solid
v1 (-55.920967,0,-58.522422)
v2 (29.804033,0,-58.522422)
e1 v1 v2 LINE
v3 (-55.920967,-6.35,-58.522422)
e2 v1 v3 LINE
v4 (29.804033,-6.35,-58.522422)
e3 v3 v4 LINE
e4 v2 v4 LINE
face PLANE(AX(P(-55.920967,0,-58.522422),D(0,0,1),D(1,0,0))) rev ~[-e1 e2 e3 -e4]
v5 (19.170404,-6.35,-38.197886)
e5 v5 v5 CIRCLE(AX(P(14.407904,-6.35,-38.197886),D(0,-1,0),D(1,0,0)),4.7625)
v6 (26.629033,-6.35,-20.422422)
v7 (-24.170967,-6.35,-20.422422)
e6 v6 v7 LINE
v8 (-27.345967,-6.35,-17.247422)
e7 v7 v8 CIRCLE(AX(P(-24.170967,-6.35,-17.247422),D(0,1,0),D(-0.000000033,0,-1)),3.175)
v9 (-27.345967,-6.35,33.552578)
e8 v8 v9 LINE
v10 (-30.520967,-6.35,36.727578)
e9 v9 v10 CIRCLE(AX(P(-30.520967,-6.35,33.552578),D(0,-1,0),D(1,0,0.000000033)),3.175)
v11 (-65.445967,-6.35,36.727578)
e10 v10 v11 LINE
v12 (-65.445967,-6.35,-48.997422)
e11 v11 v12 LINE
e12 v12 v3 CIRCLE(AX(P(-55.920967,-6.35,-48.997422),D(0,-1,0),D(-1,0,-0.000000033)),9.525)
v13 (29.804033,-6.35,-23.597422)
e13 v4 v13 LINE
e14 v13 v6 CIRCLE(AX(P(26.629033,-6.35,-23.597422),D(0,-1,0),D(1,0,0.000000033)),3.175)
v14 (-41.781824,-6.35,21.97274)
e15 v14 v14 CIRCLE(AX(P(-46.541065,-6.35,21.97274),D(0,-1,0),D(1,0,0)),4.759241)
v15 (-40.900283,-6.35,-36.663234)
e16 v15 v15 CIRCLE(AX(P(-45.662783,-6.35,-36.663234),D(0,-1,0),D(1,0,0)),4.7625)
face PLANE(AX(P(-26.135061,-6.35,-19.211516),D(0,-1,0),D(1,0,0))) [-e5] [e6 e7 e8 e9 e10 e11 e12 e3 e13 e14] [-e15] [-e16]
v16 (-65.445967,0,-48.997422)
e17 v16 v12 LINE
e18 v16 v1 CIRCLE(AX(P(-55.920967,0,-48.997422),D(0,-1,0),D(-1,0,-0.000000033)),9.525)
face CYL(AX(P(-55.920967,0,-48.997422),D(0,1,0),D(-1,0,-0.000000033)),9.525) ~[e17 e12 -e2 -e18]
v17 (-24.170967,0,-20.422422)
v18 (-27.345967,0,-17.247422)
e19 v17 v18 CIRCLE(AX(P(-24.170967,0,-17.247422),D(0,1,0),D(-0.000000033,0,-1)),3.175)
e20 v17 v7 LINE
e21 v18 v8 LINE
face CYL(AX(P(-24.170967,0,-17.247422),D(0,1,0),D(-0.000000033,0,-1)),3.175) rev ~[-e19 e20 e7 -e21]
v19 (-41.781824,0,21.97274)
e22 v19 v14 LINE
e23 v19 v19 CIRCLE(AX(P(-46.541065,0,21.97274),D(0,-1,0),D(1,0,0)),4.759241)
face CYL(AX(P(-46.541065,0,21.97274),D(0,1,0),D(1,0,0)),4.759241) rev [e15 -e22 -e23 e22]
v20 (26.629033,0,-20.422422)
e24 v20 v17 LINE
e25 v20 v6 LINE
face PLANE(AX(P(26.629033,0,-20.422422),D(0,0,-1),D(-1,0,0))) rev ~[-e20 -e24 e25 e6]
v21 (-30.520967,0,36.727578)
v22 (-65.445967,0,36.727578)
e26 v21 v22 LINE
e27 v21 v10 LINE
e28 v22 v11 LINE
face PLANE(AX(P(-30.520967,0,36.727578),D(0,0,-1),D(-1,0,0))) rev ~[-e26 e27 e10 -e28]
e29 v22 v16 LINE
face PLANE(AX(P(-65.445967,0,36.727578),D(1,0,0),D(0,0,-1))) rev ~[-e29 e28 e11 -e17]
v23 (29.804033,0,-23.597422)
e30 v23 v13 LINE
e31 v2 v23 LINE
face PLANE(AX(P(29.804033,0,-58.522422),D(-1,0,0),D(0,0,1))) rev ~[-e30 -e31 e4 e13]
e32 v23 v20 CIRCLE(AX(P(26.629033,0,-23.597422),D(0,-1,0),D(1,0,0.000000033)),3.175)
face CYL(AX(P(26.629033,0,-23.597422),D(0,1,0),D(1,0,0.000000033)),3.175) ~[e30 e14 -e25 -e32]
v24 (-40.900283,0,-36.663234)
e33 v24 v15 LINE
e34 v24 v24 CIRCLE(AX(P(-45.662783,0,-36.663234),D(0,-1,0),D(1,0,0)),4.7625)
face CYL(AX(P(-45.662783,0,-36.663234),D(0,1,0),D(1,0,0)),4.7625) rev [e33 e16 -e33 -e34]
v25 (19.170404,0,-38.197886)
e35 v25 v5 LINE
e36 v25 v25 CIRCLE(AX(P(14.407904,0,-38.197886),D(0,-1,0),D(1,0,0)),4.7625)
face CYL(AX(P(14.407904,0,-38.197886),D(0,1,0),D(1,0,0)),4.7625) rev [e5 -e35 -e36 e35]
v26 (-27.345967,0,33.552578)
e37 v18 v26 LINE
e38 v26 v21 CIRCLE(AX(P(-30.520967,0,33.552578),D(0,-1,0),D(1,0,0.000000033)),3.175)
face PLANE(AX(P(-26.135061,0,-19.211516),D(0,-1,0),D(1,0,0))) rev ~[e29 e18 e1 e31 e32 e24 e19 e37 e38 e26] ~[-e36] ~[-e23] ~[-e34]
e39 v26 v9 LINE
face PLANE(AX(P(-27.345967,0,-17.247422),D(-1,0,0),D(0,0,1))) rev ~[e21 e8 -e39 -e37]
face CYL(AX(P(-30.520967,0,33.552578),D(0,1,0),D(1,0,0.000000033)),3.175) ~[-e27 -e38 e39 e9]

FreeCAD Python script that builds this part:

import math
import FreeCAD as App
import Part
import Sketcher
Q = App.Units.Quantity

doc = App.newDocument("Part")
params = doc.addObject("Spreadsheet::Sheet", "Params")
for row, (alias, value) in enumerate([
    ("sketch1_width", "2 in"),
    ("sketch1_diameter", "0.375 in"),
    ("sketch1_radius", "0.375 in"),
    ("sketch1_radius2", "0.125 in"),
    ("pad1_length", "0.25 in"),
], start=1):
    params.set(f"A{row}", alias)
    params.set(f"B{row}", "=" + value)
    params.setAlias(f"B{row}", alias)

body = doc.addObject("PartDesign::Body", "Body")

sketch1 = doc.addObject("Sketcher::SketchObject", "Sketch")
body.addObject(sketch1)
sketch1.AttachmentSupport = (doc.XZ_Plane, [""])
sketch1.MapMode = "FlatFace"
sketch1.addGeometry(Part.LineSegment(App.Vector(-30.520967, 36.727578, 0), App.Vector(-65.445967, 36.727578, 0)), False)
sketch1.addGeometry(Part.LineSegment(App.Vector(-65.445967, 36.727578, 0), App.Vector(-65.445967, -48.997422, 0)), False)
sketch1.addGeometry(Part.ArcOfCircle(Part.Circle(App.Vector(-55.920967, -48.997422, 0), App.Vector(0, 0, 1), 9.525), math.radians(-179.999998), math.radians(-90.000002)), False)
sketch1.addGeometry(Part.LineSegment(App.Vector(-55.920967, -58.522422, 0), App.Vector(29.804033, -58.522422, 0)), False)
sketch1.addGeometry(Part.LineSegment(App.Vector(29.804033, -58.522422, 0), App.Vector(29.804033, -23.597422, 0)), False)
sketch1.addGeometry(Part.ArcOfCircle(Part.Circle(App.Vector(26.629033, -23.597422, 0), App.Vector(0, 0, 1), 3.175), math.radians(0.000002), math.radians(89.999998)), False)
sketch1.addGeometry(Part.LineSegment(App.Vector(26.629033, -20.422422, 0), App.Vector(-24.170967, -20.422422, 0)), False)
sketch1.addGeometry(Part.ArcOfCircle(Part.Circle(App.Vector(-24.170967, -17.247422, 0), App.Vector(0, 0, 1), 3.175), math.radians(-179.999998), math.radians(-90.000002)), False)
sketch1.addGeometry(Part.LineSegment(App.Vector(-27.345967, -17.247422, 0), App.Vector(-27.345967, 33.552578, 0)), False)
sketch1.addGeometry(Part.ArcOfCircle(Part.Circle(App.Vector(-30.520967, 33.552578, 0), App.Vector(0, 0, 1), 3.175), math.radians(0.000002), math.radians(89.999998)), False)
sketch1.addGeometry(Part.Circle(App.Vector(-45.662783, -36.663234, 0), App.Vector(0, 0, 1), 4.7625), False)
sketch1.addGeometry(Part.Circle(App.Vector(14.407904, -38.197886, 0), App.Vector(0, 0, 1), 4.7625), False)
sketch1.addGeometry(Part.Circle(App.Vector(-46.541065, 21.97274, 0), App.Vector(0, 0, 1), 4.759241), False)
sketch1.addConstraint(Sketcher.Constraint("Coincident", 0, 2, 1, 1))
sketch1.addConstraint(Sketcher.Constraint("Tangent", 1, 2, 2, 1))
sketch1.addConstraint(Sketcher.Constraint("Tangent", 2, 2, 3, 1))
sketch1.addConstraint(Sketcher.Constraint("Coincident", 3, 2, 4, 1))
sketch1.addConstraint(Sketcher.Constraint("Tangent", 4, 2, 5, 1))
sketch1.addConstraint(Sketcher.Constraint("Tangent", 5, 2, 6, 1))
sketch1.addConstraint(Sketcher.Constraint("Tangent", 6, 2, 7, 2))
sketch1.addConstraint(Sketcher.Constraint("Tangent", 7, 1, 8, 1))
sketch1.addConstraint(Sketcher.Constraint("Tangent", 8, 2, 9, 1))
sketch1.addConstraint(Sketcher.Constraint("Tangent", 9, 2, 0, 1))
sketch1.addConstraint(Sketcher.Constraint("Horizontal", 0))
sketch1.addConstraint(Sketcher.Constraint("Vertical", 1))
sketch1.addConstraint(Sketcher.Constraint("Horizontal", 3))
sketch1.addConstraint(Sketcher.Constraint("Vertical", 4))
sketch1.addConstraint(Sketcher.Constraint("Horizontal", 6))
sketch1.addConstraint(Sketcher.Constraint("Vertical", 8))
sketch1.addConstraint(Sketcher.Constraint("Equal", 5, 7))
sketch1.addConstraint(Sketcher.Constraint("Equal", 7, 9))
sketch1.addConstraint(Sketcher.Constraint("Equal", 10, 11))
sketch1.addConstraint(Sketcher.Constraint("Equal", 3, 1))
sketch1.addConstraint(Sketcher.Constraint("Equal", 0, 4))
sketch1.addConstraint(Sketcher.Constraint("DistanceX", 6, 2, 6, 1, Q("2 in")))
sketch1.addConstraint(Sketcher.Constraint("Diameter", 10, Q("0.375 in")))
sketch1.addConstraint(Sketcher.Constraint("Radius", 2, Q("0.375 in")))
sketch1.addConstraint(Sketcher.Constraint("Radius", 5, Q("0.125 in")))
sketch1.addConstraint(Sketcher.Constraint("DistanceY", 2, 3, 5, 3, Q("1 in")))
sketch1.addConstraint(Sketcher.Constraint("Diameter", 12, Q("9.518482 mm")))
sketch1.addConstraint(Sketcher.Constraint("DistanceX", 12, 3, 7, 3, Q("22.370098 mm")))
sketch1.addConstraint(Sketcher.Constraint("DistanceY", 2, 3, -1, 1, Q("48.997422 mm")))
sketch1.addConstraint(Sketcher.Constraint("DistanceY", -1, 1, 12, 3, Q("21.97274 mm")))
sketch1.addConstraint(Sketcher.Constraint("DistanceY", 10, 3, 9, 3, Q("70.215812 mm")))
sketch1.addConstraint(Sketcher.Constraint("DistanceX", 11, 3, 5, 3, Q("12.221129 mm")))
sketch1.addConstraint(Sketcher.Constraint("DistanceY", 11, 3, 10, 3, Q("1.534652 mm")))
sketch1.addConstraint(Sketcher.Constraint("DistanceX", 2, 3, -1, 1, Q("55.920967 mm")))
sketch1.addConstraint(Sketcher.Constraint("DistanceX", 10, 3, -1, 1, Q("45.662783 mm")))
sketch1.setExpression("Constraints[21]", "Params.sketch1_width")
sketch1.setExpression("Constraints[22]", "Params.sketch1_diameter")
sketch1.setExpression("Constraints[23]", "Params.sketch1_radius")
sketch1.setExpression("Constraints[24]", "Params.sketch1_radius2")
pad1 = doc.addObject("PartDesign::Pad", "Pad")
body.addObject(pad1)
pad1.Profile = sketch1
pad1.setExpression("Length", "Params.pad1_length")

doc.recompute()
